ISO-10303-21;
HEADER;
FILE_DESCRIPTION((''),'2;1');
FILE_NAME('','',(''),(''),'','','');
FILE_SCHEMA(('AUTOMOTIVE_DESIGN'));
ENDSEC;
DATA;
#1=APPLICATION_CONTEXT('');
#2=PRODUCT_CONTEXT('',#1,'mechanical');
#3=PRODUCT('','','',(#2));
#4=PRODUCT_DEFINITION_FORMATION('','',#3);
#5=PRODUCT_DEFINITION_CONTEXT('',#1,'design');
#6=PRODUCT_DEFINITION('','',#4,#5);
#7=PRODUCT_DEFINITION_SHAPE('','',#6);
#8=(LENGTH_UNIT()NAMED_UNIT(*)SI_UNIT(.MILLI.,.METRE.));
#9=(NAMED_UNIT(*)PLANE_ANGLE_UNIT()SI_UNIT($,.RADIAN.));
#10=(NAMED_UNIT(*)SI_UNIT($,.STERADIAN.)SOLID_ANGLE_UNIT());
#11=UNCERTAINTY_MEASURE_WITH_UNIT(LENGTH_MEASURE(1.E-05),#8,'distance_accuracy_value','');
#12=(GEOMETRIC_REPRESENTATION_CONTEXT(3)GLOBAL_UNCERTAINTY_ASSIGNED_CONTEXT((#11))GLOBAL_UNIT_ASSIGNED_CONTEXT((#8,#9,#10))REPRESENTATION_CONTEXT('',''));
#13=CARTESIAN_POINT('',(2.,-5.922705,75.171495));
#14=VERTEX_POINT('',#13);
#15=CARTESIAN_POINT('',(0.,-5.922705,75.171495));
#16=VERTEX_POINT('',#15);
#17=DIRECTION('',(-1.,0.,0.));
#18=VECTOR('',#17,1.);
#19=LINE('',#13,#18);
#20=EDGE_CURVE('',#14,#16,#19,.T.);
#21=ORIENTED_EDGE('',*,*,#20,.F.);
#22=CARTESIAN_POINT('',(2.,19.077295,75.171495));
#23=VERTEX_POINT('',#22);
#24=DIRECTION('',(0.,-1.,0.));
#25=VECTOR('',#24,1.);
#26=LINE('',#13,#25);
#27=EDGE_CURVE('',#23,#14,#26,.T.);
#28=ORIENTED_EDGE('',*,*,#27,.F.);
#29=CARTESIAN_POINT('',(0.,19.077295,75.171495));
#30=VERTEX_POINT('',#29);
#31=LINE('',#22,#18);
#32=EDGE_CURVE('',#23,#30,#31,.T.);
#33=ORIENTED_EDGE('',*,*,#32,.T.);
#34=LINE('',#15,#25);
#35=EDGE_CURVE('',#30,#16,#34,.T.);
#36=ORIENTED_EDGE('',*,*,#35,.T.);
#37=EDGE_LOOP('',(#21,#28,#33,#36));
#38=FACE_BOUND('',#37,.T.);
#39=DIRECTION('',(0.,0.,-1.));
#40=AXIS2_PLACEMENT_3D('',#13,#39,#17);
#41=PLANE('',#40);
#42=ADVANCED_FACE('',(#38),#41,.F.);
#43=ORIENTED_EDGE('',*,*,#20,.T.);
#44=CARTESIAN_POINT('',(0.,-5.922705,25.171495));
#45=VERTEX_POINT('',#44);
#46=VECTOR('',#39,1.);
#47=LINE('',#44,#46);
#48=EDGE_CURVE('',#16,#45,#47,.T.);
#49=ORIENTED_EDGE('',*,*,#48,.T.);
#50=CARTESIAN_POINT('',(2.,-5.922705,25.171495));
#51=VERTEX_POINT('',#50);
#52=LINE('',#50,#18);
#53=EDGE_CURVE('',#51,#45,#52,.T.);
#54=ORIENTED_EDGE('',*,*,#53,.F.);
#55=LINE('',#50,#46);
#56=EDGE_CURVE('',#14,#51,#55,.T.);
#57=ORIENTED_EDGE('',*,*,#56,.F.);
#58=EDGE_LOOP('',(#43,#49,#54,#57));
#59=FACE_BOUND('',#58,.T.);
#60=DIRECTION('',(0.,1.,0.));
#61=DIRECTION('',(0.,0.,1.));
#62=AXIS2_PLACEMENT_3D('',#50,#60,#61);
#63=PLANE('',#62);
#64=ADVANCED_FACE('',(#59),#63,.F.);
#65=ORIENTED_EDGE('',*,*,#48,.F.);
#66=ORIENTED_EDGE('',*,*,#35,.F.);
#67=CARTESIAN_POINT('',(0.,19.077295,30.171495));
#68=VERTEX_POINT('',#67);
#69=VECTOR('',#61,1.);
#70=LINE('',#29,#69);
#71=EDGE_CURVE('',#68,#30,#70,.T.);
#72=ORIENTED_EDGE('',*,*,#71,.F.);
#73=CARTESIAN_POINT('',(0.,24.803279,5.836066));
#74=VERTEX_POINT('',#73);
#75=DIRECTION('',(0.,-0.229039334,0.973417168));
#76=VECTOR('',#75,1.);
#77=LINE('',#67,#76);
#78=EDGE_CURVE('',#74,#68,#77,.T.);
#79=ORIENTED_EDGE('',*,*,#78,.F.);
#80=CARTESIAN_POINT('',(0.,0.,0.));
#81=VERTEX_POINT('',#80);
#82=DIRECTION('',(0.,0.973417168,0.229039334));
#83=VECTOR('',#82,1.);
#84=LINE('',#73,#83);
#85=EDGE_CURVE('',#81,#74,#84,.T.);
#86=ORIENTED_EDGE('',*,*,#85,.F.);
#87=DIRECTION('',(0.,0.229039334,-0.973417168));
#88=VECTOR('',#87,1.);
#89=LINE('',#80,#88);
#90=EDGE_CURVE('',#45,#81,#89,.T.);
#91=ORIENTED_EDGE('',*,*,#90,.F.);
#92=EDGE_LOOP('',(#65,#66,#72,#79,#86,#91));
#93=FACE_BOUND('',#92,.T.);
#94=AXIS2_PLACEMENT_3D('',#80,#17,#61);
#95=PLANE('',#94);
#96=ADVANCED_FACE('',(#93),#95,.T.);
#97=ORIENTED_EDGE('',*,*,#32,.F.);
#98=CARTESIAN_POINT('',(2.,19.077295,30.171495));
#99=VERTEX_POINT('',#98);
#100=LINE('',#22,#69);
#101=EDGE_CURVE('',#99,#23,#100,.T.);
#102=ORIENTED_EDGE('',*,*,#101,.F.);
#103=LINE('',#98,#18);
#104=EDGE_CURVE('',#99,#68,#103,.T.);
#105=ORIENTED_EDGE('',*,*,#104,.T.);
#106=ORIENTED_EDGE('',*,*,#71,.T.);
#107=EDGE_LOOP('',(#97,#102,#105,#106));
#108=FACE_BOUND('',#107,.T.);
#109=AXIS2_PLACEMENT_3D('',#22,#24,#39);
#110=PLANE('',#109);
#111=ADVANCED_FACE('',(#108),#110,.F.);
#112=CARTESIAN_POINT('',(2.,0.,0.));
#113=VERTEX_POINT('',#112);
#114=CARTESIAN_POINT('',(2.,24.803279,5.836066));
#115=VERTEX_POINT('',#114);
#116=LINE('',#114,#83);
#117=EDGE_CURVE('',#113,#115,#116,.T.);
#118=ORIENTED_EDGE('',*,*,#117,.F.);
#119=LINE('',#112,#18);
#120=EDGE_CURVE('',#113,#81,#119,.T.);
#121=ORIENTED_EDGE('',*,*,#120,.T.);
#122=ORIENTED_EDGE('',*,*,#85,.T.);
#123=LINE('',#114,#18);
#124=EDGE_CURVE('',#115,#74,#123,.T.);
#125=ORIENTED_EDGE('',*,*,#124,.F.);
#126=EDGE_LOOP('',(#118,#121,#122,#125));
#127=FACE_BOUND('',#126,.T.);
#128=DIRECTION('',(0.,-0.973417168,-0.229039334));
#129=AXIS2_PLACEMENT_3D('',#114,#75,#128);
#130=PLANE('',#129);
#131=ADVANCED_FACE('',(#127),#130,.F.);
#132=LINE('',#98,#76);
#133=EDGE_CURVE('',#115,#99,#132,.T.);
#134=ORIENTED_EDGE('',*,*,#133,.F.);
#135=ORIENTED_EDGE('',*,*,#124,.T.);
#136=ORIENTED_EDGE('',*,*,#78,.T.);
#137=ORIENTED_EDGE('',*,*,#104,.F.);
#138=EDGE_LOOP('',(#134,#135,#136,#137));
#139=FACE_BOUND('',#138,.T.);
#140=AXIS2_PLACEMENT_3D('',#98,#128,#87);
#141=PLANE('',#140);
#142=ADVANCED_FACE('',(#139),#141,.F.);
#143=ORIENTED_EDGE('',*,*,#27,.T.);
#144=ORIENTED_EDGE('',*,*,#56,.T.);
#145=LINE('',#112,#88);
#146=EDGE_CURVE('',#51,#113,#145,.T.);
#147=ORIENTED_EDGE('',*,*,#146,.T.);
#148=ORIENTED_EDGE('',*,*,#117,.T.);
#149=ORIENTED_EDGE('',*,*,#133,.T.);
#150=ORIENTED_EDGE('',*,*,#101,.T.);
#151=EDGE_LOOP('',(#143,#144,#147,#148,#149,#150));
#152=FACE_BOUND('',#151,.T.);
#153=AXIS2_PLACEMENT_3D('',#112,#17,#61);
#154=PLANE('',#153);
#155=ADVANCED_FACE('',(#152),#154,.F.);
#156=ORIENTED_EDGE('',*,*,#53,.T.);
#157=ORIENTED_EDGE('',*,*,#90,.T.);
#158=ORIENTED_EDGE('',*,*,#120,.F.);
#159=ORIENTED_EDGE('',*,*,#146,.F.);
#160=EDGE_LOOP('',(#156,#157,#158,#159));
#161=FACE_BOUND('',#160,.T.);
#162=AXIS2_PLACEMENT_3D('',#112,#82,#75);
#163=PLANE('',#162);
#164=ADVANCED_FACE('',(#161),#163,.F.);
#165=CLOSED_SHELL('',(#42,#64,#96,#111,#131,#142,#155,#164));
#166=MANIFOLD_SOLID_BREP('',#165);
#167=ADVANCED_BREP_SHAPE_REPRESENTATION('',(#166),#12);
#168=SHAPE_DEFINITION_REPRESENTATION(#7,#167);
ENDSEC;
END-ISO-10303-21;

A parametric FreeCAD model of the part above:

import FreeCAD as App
import Part
import Sketcher
from FreeCAD import Vector


def add_polygon(sketch, points):
    """Adds a closed chain of lines whose ends are joined by coincident constraints."""
    first, n = sketch.GeometryCount, len(points)
    for a, b in zip(points, points[1:] + points[:1]):
        sketch.addGeometry(Part.LineSegment(App.Vector(*a, 0), App.Vector(*b, 0)), False)
    for i in range(n):
        sketch.addConstraint(Sketcher.Constraint("Coincident", first + i, 2, first + (i + 1) % n, 1))

doc = App.newDocument("Part")
params = doc.addObject("Spreadsheet::Sheet", "Params")
for row, (alias, value) in enumerate([
    ("sketch1_width", "25 mm"),
    ("sketch1_height", "45 mm"),
    ("sketch1_height2", "50 mm"),
    ("sketch1_length", "25 mm"),
    ("pad1_length", "2 mm"),
], start=1):
    params.set(f"A{row}", alias)
    params.set(f"B{row}", "=" + value)
    params.setAlias(f"B{row}", alias)

body = doc.addObject("PartDesign::Body", "Body")

sketch1 = body.newObject("Sketcher::SketchObject", "Sketch")
sketch1.AttachmentSupport = (doc.getObject("YZ_Plane"), [""])
sketch1.MapMode = "FlatFace"
add_polygon(sketch1, [(-5.922705, 25.171495), (0, 0), (24.803279, 5.836066), (19.077295, 30.171495), (19.077295, 75.171495), (-5.922705, 75.171495)])
sketch1.addConstraint([
    Sketcher.Constraint("Vertical", 3),
    Sketcher.Constraint("Horizontal", 4),
    Sketcher.Constraint("Vertical", 5),
    Sketcher.Constraint("Coincident", 0, 2, -1, 1),
    Sketcher.Constraint("Perpendicular", 0, 1),
    Sketcher.Constraint("Perpendicular", 1, 2),
    Sketcher.Constraint("DistanceX", 4, 2, 4, 1, 25.0),
    Sketcher.Constraint("DistanceY", 3, 1, 3, 2, 45.0),
    Sketcher.Constraint("DistanceY", 5, 2, 5, 1, 50.0),
    Sketcher.Constraint("Distance", 2, 25.0),
    Sketcher.Constraint("DistanceX", -1, 1, 1, 2, 24.803279),
])
sketch1.setExpression("Constraints[12]", "Params.sketch1_width")
sketch1.setExpression("Constraints[13]", "Params.sketch1_height")
sketch1.setExpression("Constraints[14]", "Params.sketch1_height2")
sketch1.setExpression("Constraints[15]", "Params.sketch1_length")
pad1 = body.newObject("PartDesign::Pad", "Pad")
pad1.Profile = sketch1
pad1.setExpression("Length", "Params.pad1_length")

doc.recompute()
